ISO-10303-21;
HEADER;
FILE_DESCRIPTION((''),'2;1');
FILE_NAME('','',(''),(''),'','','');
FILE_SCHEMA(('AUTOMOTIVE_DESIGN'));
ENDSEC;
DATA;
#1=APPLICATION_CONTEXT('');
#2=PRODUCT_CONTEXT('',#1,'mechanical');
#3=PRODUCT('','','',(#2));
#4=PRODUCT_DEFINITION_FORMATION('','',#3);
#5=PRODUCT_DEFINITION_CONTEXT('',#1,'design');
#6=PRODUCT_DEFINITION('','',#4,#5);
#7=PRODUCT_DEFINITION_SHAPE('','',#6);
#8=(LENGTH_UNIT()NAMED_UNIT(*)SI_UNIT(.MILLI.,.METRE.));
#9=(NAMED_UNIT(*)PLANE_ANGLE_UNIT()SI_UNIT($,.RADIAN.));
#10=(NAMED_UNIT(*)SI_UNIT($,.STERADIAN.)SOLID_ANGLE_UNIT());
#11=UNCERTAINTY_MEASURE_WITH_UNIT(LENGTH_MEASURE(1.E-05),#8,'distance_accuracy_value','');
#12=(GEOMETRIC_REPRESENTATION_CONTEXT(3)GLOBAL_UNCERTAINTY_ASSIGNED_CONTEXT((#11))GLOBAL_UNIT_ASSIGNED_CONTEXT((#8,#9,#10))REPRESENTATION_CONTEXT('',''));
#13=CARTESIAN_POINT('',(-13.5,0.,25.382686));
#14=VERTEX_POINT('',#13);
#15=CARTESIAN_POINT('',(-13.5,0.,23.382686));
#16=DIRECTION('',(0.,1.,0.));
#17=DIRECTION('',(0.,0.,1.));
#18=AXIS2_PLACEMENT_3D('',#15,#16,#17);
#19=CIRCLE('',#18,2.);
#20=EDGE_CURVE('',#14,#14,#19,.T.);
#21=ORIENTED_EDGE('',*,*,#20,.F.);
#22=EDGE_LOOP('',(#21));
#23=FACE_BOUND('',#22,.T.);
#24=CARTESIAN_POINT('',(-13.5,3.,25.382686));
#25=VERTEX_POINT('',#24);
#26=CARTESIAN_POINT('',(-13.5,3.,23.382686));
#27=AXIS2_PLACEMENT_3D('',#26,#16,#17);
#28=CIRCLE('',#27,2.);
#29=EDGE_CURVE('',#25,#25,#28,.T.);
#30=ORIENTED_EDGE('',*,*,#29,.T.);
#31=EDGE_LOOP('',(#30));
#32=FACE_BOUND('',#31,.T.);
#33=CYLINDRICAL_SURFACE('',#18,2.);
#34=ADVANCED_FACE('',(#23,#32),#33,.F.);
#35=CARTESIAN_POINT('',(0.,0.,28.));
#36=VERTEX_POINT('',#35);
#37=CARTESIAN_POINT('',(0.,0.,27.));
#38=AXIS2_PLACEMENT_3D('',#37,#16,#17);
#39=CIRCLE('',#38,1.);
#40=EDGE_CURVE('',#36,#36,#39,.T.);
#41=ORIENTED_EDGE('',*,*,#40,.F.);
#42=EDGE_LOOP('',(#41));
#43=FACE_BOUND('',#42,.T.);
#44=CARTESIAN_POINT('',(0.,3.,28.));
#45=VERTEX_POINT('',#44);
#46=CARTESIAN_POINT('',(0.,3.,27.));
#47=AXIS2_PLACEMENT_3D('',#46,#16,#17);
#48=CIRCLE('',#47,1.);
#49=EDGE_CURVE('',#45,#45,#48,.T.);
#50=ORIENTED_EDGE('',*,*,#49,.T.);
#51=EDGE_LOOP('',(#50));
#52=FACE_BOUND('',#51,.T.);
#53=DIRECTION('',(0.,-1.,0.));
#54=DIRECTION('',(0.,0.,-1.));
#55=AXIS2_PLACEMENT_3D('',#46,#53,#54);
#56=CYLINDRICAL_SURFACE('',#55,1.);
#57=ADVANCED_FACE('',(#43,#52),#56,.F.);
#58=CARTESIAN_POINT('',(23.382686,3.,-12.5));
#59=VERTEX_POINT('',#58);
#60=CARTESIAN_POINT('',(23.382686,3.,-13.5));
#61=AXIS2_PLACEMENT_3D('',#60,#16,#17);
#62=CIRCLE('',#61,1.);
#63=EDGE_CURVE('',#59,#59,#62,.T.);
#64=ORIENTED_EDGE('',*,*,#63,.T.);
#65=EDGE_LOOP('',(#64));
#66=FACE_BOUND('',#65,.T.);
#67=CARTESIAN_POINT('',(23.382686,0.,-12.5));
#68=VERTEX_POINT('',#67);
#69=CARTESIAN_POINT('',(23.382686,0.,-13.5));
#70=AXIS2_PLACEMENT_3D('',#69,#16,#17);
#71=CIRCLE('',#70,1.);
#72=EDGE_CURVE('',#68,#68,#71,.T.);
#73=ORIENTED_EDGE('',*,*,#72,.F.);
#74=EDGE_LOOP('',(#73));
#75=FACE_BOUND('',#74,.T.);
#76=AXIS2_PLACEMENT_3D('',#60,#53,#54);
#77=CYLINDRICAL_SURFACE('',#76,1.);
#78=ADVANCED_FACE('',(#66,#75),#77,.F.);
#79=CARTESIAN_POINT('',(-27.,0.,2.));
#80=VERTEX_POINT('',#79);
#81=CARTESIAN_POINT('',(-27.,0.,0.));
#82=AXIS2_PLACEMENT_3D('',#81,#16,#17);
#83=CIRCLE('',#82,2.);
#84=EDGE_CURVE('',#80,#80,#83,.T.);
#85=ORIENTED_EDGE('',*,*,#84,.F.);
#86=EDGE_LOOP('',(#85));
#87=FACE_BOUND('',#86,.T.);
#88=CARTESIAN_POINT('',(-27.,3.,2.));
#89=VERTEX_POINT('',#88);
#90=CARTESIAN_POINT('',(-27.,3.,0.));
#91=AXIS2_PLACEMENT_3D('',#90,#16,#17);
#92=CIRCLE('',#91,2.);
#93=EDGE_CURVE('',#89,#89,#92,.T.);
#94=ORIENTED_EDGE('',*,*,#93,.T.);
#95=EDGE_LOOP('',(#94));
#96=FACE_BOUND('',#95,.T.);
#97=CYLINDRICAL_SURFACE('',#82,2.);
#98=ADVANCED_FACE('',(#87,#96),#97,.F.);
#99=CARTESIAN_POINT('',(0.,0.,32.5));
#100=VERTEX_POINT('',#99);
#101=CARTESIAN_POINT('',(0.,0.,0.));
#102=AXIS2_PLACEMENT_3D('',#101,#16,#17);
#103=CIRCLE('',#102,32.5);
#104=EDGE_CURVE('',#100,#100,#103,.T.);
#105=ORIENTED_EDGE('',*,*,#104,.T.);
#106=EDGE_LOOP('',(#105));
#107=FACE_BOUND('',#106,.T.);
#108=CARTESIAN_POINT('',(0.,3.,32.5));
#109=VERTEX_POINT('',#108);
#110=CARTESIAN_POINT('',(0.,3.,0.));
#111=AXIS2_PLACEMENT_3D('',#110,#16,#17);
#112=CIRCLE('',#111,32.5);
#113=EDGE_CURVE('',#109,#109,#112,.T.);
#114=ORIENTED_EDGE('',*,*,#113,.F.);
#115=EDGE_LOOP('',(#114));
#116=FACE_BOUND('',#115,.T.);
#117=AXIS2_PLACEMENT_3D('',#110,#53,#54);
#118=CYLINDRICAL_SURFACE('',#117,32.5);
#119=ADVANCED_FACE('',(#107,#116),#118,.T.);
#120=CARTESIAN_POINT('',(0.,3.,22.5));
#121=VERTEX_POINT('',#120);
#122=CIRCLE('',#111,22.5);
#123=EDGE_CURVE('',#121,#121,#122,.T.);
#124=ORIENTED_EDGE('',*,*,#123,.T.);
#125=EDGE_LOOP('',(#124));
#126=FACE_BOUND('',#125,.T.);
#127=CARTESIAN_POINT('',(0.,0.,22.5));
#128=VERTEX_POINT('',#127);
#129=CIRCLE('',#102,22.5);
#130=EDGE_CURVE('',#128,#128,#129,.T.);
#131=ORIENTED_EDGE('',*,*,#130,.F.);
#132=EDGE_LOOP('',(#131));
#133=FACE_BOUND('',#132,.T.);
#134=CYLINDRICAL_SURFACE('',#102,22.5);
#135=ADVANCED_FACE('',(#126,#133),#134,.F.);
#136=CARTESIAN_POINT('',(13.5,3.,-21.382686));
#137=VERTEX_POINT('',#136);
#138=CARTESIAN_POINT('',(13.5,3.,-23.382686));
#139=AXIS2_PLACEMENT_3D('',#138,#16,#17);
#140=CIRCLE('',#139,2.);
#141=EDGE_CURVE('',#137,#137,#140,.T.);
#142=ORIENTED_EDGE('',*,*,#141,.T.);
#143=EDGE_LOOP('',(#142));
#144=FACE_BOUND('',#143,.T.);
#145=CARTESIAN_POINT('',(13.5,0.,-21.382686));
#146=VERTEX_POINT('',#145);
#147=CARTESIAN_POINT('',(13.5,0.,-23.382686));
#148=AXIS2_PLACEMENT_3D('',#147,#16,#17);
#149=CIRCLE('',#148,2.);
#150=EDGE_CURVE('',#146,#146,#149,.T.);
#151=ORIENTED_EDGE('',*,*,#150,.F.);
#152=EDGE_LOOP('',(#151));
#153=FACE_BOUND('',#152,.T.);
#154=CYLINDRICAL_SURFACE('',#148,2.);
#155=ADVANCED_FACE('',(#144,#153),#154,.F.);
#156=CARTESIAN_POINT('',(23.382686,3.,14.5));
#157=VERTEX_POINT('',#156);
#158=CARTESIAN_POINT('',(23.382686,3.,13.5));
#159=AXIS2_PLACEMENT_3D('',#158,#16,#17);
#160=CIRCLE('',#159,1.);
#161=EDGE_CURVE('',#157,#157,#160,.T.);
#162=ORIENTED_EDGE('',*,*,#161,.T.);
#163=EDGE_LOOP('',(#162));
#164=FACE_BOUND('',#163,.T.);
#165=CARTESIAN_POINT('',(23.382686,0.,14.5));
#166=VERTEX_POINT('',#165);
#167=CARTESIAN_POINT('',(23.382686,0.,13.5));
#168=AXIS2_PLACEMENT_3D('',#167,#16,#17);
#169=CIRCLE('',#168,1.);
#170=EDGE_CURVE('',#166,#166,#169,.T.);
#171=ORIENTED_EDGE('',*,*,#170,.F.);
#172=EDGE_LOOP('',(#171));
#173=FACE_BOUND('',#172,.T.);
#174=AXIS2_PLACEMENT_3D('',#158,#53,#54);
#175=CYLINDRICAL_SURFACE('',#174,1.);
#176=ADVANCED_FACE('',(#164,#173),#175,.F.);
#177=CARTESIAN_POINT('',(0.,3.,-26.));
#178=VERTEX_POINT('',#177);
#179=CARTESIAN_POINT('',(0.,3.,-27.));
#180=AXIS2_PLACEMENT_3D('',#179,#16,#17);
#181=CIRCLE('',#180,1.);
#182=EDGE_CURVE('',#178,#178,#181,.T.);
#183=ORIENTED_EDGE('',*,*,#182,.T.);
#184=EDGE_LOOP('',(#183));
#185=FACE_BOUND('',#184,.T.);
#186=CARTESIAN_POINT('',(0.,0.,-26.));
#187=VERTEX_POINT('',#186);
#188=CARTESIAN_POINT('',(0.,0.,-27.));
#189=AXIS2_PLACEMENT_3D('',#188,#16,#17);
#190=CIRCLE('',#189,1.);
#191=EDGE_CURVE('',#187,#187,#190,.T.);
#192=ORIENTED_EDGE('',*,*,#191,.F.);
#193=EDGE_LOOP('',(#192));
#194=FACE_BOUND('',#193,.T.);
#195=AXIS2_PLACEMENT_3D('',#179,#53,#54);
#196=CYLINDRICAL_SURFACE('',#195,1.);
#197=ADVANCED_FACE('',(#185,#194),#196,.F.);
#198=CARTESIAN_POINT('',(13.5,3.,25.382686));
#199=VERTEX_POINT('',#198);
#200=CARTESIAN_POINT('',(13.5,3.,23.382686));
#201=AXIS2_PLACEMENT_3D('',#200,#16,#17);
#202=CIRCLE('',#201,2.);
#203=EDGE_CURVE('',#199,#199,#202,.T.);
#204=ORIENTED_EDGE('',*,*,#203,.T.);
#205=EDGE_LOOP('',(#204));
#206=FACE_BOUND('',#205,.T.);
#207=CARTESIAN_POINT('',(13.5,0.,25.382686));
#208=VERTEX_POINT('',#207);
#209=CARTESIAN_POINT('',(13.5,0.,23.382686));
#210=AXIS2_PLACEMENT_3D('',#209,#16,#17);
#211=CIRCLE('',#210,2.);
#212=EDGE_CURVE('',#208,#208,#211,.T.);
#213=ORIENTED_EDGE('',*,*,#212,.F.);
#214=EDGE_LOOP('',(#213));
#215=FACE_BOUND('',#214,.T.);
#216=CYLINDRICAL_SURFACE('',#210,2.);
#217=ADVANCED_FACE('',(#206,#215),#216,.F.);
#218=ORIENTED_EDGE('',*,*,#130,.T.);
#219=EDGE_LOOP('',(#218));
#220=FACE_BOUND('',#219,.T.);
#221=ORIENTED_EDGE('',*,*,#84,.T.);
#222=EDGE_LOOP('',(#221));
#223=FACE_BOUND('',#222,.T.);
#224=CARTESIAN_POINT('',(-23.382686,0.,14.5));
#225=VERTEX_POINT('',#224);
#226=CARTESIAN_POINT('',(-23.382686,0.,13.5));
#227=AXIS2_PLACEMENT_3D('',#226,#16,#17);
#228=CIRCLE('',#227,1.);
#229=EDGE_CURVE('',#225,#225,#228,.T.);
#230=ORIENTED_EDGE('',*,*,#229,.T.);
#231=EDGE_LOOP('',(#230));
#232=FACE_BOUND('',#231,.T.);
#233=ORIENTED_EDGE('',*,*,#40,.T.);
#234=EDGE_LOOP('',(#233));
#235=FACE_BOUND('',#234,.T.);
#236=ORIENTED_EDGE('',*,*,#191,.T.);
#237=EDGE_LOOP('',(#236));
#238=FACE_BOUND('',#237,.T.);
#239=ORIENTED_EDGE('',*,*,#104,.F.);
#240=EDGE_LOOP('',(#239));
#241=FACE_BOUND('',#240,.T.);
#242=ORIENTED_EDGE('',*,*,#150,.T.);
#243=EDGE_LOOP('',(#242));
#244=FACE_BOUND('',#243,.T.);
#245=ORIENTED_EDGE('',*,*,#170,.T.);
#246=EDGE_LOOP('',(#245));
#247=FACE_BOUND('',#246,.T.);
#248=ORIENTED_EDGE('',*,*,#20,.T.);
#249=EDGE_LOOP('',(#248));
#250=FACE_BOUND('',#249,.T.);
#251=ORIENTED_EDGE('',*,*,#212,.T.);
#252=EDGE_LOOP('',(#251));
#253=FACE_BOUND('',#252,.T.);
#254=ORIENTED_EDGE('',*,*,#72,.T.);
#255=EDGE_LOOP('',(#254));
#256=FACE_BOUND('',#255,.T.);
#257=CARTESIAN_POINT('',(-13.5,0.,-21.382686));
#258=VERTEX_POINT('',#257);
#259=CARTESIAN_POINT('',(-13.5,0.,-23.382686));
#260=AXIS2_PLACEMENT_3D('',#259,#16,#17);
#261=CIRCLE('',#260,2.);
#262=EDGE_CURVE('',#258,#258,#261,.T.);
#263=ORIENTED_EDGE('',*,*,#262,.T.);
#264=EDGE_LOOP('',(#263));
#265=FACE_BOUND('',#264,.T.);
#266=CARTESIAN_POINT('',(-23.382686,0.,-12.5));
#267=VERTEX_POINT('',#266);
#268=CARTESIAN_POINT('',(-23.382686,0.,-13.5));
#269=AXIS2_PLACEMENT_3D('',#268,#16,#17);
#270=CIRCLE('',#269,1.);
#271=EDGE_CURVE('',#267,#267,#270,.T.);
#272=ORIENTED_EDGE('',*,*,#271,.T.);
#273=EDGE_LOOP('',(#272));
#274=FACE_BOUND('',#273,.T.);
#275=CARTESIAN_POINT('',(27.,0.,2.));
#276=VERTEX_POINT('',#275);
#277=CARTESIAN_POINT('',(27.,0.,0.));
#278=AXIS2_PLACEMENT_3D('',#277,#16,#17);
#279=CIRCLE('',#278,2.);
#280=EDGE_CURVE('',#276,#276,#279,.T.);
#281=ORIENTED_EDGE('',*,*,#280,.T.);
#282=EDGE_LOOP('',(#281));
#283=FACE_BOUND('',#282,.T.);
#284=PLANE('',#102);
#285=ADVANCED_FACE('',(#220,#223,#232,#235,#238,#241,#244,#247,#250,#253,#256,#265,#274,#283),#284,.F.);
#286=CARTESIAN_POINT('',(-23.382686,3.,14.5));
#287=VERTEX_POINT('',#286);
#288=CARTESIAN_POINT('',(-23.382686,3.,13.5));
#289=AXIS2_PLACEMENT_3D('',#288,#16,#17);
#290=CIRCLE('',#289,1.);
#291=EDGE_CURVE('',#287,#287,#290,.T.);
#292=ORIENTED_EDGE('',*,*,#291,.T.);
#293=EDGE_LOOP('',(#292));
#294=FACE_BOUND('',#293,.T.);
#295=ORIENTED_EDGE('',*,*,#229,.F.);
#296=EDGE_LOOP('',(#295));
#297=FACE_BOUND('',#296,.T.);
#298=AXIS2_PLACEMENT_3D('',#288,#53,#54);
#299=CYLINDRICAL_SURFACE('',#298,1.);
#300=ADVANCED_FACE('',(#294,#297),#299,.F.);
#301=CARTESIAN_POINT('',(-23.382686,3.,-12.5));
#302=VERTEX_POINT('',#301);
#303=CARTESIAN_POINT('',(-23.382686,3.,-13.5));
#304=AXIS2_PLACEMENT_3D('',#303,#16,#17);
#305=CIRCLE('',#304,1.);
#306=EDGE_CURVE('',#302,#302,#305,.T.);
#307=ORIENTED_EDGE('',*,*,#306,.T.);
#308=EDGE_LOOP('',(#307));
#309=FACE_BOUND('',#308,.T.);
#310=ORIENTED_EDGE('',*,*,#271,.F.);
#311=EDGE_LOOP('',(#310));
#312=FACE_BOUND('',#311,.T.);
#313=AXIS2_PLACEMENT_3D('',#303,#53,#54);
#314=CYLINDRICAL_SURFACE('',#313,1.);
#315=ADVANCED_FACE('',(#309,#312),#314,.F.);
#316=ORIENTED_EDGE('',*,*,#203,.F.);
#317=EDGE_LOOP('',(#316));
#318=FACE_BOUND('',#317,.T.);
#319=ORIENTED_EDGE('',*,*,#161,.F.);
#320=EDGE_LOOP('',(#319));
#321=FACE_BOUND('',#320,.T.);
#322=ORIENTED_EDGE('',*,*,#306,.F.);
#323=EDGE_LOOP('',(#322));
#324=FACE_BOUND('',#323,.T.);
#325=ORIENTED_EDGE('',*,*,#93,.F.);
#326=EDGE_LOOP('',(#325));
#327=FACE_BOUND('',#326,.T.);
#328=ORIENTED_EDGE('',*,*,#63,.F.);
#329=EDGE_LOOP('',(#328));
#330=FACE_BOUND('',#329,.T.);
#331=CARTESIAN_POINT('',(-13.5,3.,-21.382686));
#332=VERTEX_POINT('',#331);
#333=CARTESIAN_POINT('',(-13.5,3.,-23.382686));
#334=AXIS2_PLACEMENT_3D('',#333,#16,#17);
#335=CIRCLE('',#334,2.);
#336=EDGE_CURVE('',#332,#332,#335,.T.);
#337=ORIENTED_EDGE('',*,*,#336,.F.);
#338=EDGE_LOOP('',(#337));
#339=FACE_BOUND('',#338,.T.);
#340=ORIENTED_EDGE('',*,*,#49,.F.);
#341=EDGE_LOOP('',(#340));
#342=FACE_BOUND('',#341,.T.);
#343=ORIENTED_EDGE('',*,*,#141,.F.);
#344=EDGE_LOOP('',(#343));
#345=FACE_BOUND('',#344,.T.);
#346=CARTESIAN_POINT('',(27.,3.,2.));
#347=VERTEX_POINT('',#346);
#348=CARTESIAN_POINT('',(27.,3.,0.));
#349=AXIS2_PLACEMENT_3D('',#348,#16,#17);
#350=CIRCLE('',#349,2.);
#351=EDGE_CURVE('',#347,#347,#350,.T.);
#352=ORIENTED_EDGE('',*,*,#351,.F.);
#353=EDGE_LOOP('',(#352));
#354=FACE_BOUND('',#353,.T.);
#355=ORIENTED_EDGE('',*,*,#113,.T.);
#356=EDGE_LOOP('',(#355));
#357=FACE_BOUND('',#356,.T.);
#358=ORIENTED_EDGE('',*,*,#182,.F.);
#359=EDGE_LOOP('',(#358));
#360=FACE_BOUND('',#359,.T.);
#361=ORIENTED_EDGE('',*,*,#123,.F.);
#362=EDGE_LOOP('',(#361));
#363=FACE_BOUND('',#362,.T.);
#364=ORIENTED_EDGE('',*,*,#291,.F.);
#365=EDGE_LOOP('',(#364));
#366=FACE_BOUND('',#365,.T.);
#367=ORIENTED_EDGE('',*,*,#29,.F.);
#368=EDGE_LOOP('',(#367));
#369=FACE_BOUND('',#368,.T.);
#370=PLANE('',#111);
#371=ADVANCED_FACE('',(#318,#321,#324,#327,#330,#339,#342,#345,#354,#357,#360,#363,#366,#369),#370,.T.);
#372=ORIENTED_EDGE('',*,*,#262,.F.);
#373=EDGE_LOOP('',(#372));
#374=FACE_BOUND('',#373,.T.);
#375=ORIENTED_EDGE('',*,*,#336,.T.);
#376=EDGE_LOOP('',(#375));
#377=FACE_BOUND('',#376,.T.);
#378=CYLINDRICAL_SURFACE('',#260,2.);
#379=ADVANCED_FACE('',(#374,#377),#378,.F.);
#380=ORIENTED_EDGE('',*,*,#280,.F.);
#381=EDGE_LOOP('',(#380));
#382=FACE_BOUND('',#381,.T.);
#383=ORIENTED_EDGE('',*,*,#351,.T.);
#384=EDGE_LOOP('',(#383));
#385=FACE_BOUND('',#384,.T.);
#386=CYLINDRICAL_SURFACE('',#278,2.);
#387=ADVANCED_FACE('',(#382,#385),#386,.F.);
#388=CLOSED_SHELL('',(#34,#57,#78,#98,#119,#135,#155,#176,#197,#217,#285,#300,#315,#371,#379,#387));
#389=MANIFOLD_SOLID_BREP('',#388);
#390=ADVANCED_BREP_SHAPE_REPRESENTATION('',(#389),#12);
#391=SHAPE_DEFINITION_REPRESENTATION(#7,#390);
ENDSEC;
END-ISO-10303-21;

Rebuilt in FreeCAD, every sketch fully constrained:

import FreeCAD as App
import Part
import Sketcher
from FreeCAD import Vector
Q = App.Units.Quantity

doc = App.newDocument("Part")
params = doc.addObject("Spreadsheet::Sheet", "Params")
for row, (alias, value) in enumerate([
    ("sketch1_diameter", "65 mm"),
    ("sketch1_diameter2", "2 mm"),
    ("pad1_length", "3 mm"),
    ("sketch2_diameter", "45 mm"),
    ("sketch2_diameter2", "4 mm"),
], start=1):
    params.set(f"A{row}", alias)
    params.set(f"B{row}", "=" + value)
    params.setAlias(f"B{row}", alias)

body = doc.addObject("PartDesign::Body", "Body")

sketch1 = body.newObject("Sketcher::SketchObject", "Sketch")
sketch1.AttachmentSupport = (doc.getObject("XZ_Plane"), [""])
sketch1.MapMode = "FlatFace"
sketch1.addGeometry(Part.Circle(Vector(0, 0, 0), Vector(0, 0, 1), 32.5), False)
sketch1.addGeometry(Part.Circle(Vector(-23.382686, -13.5, 0), Vector(0, 0, 1), 1), False)
sketch1.addGeometry(Part.Circle(Vector(0, -27, 0), Vector(0, 0, 1), 1), False)
sketch1.addGeometry(Part.Circle(Vector(-23.382686, 13.5, 0), Vector(0, 0, 1), 1), False)
sketch1.addGeometry(Part.Circle(Vector(23.382686, -13.5, 0), Vector(0, 0, 1), 1), False)
sketch1.addGeometry(Part.Circle(Vector(0, 27, 0), Vector(0, 0, 1), 1), False)
sketch1.addGeometry(Part.Circle(Vector(23.382686, 13.5, 0), Vector(0, 0, 1), 1), False)
sketch1.addConstraint(Sketcher.Constraint("Coincident", 0, 3, -1, 1))
sketch1.addConstraint(Sketcher.Constraint("Equal", 1, 2))
sketch1.addConstraint(Sketcher.Constraint("Equal", 2, 3))
sketch1.addConstraint(Sketcher.Constraint("Equal", 3, 4))
sketch1.addConstraint(Sketcher.Constraint("Equal", 4, 5))
sketch1.addConstraint(Sketcher.Constraint("Equal", 5, 6))
sketch1.addConstraint(Sketcher.Constraint("Symmetric", 3, 3, 4, 3, -1, 1))
sketch1.addConstraint(Sketcher.Constraint("Symmetric", 2, 3, 5, 3, -1, 1))
sketch1.addConstraint(Sketcher.Constraint("Symmetric", 1, 3, 6, 3, -1, 1))
sketch1.addConstraint(Sketcher.Constraint("Symmetric", 1, 3, 4, 3, -2))
sketch1.addConstraint(Sketcher.Constraint("PointOnObject", 2, 3, -2))
sketch1.addConstraint(Sketcher.Constraint("Diameter", 0, Q("65 mm")))
sketch1.addConstraint(Sketcher.Constraint("Diameter", 1, Q("2 mm")))
sketch1.addConstraint(Sketcher.Constraint("DistanceY", 2, 3, -1, 1, Q("27 mm")))
sketch1.addConstraint(Sketcher.Constraint("DistanceY", 1, 3, 3, 3, Q("27 mm")))
sketch1.addConstraint(Sketcher.Constraint("DistanceX", 1, 3, 4, 3, Q("46.765372 mm")))
sketch1.setExpression("Constraints[11]", "Params.sketch1_diameter")
sketch1.setExpression("Constraints[12]", "Params.sketch1_diameter2")
pad1 = body.newObject("PartDesign::Pad", "Pad")
pad1.Profile = sketch1
pad1.setExpression("Length", "Params.pad1_length")
pad1.Reversed = True

sketch2 = body.newObject("Sketcher::SketchObject", "Sketch001")
sketch2.AttachmentSupport = (doc.getObject("XZ_Plane"), [""])
sketch2.MapMode = "FlatFace"
sketch2.AttachmentOffset = App.Placement(Vector(0, 0, -3), App.Rotation())
sketch2.addGeometry(Part.Circle(Vector(0, 0, 0), Vector(0, 0, 1), 22.5), False)
sketch2.addGeometry(Part.Circle(Vector(-13.5, -23.382686, 0), Vector(0, 0, 1), 2), False)
sketch2.addGeometry(Part.Circle(Vector(13.5, -23.382686, 0), Vector(0, 0, 1), 2), False)
sketch2.addGeometry(Part.Circle(Vector(27, 0, 0), Vector(0, 0, 1), 2), False)
sketch2.addGeometry(Part.Circle(Vector(13.5, 23.382686, 0), Vector(0, 0, 1), 2), False)
sketch2.addGeometry(Part.Circle(Vector(-13.5, 23.382686, 0), Vector(0, 0, 1), 2), False)
sketch2.addGeometry(Part.Circle(Vector(-27, 0, 0), Vector(0, 0, 1), 2), False)
sketch2.addConstraint(Sketcher.Constraint("Coincident", 0, 3, -1, 1))
sketch2.addConstraint(Sketcher.Constraint("Equal", 1, 2))
sketch2.addConstraint(Sketcher.Constraint("Equal", 2, 3))
sketch2.addConstraint(Sketcher.Constraint("Equal", 3, 4))
sketch2.addConstraint(Sketcher.Constraint("Equal", 4, 5))
sketch2.addConstraint(Sketcher.Constraint("Equal", 5, 6))
sketch2.addConstraint(Sketcher.Constraint("Symmetric", 1, 3, 4, 3, -1, 1))
sketch2.addConstraint(Sketcher.Constraint("Symmetric", 2, 3, 5, 3, -1, 1))
sketch2.addConstraint(Sketcher.Constraint("Symmetric", 3, 3, 6, 3, -1, 1))
sketch2.addConstraint(Sketcher.Constraint("Symmetric", 1, 3, 2, 3, -2))
sketch2.addConstraint(Sketcher.Constraint("PointOnObject", 3, 3, -1))
sketch2.addConstraint(Sketcher.Constraint("Diameter", 0, Q("45 mm")))
sketch2.addConstraint(Sketcher.Constraint("Diameter", 1, Q("4 mm")))
sketch2.addConstraint(Sketcher.Constraint("DistanceX", -1, 1, 3, 3, Q("27 mm")))
sketch2.addConstraint(Sketcher.Constraint("DistanceX", 1, 3, 2, 3, Q("27 mm")))
sketch2.addConstraint(Sketcher.Constraint("DistanceY", 2, 3, 4, 3, Q("46.765372 mm")))
sketch2.setExpression("Constraints[11]", "Params.sketch2_diameter")
sketch2.setExpression("Constraints[12]", "Params.sketch2_diameter2")
pocket1 = body.newObject("PartDesign::Pocket", "Pocket")
pocket1.Profile = sketch2
pocket1.Type = "ThroughAll"
pocket1.Reversed = True

doc.recompute()
